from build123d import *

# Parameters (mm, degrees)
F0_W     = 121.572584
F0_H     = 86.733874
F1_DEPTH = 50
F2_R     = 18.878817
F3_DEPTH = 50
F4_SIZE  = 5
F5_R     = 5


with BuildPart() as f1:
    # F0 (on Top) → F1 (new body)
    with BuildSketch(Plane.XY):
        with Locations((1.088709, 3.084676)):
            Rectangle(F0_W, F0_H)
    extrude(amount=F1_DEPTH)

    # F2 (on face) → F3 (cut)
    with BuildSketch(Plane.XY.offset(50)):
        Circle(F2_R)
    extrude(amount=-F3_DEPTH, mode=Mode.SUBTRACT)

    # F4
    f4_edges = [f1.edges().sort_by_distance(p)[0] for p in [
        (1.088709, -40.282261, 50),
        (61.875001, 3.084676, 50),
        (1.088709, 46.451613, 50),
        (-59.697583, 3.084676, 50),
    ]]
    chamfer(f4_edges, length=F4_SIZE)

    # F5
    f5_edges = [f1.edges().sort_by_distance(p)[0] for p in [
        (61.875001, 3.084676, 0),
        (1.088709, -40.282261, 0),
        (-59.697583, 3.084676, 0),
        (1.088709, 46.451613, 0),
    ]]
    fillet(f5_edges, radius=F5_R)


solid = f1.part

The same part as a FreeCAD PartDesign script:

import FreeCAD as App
import Part
import Sketcher

V = App.Vector


def edges_at(feature, points):
    """Names of the edges that pass closest to the given points."""
    edges = feature.Shape.Edges
    near = lambda p: min(range(len(edges)), key=lambda i: edges[i].distToShape(Part.Vertex(*p))[0])
    return sorted({f"Edge{near(p) + 1}" for p in points})

doc = App.newDocument("Part")
body = doc.addObject("PartDesign::Body", "Body")

# Sketch on XY plane
sketch1 = body.newObject("Sketcher::SketchObject", "Sketch")
sketch1.AttachmentSupport = (doc.getObject("XY_Plane"), [""])
sketch1.MapMode = "FlatFace"
sketch1.addGeometry(Part.LineSegment(V(-59.697583, 46.451613, 0), V(-59.697583, -40.282261, 0)), False)
sketch1.addGeometry(Part.LineSegment(V(-59.697583, -40.282261, 0), V(61.875001, -40.282261, 0)), False)
sketch1.addGeometry(Part.LineSegment(V(61.875001, -40.282261, 0), V(61.875001, 46.451613, 0)), False)
sketch1.addGeometry(Part.LineSegment(V(61.875001, 46.451613, 0), V(-59.697583, 46.451613, 0)), False)
sketch1.addConstraint(Sketcher.Constraint("Coincident", 0, 2, 1, 1))
sketch1.addConstraint(Sketcher.Constraint("Coincident", 1, 2, 2, 1))
sketch1.addConstraint(Sketcher.Constraint("Coincident", 2, 2, 3, 1))
sketch1.addConstraint(Sketcher.Constraint("Coincident", 3, 2, 0, 1))
sketch1.addConstraint(Sketcher.Constraint("Vertical", 0))
sketch1.addConstraint(Sketcher.Constraint("Horizontal", 1))
sketch1.addConstraint(Sketcher.Constraint("Vertical", 2))
sketch1.addConstraint(Sketcher.Constraint("Horizontal", 3))
sketch1.addConstraint(Sketcher.Constraint("DistanceX", -1, 1, 1, 2, 61.875001))
sketch1.addConstraint(Sketcher.Constraint("DistanceX", 1, 1, 1, 2, 121.572584))
sketch1.addConstraint(Sketcher.Constraint("DistanceY", 0, 2, 0, 1, 86.733874))
sketch1.addConstraint(Sketcher.Constraint("DistanceY", 0, 2, -1, 1, 40.282261))
pad1 = body.newObject("PartDesign::Pad", "Pad")
pad1.Profile = sketch1
pad1.Length = 50

# Sketch on XY plane
sketch2 = body.newObject("Sketcher::SketchObject", "Sketch001")
sketch2.AttachmentSupport = (doc.getObject("XY_Plane"), [""])
sketch2.MapMode = "FlatFace"
sketch2.AttachmentOffset = App.Placement(V(0, 0, 50), App.Rotation())
sketch2.addGeometry(Part.Circle(V(0, 0, 0), V(0, 0, 1), 18.878817), False)
sketch2.addConstraint(Sketcher.Constraint("Coincident", 0, 3, -1, 1))
sketch2.addConstraint(Sketcher.Constraint("Diameter", 0, 37.757634))
pocket1 = body.newObject("PartDesign::Pocket", "Pocket")
pocket1.Profile = sketch2
pocket1.Length = 50
doc.recompute()

chamfer = body.newObject("PartDesign::Chamfer", "Chamfer")
chamfer.Base = (pocket1, edges_at(pocket1, [
    (1.089, -40.282, 50),
    (61.875, 3.085, 50),
    (1.089, 46.452, 50),
    (-59.698, 3.085, 50),
]))
chamfer.Size = 5
doc.recompute()

fillet = body.newObject("PartDesign::Fillet", "Fillet")
fillet.Base = (chamfer, edges_at(chamfer, [
    (61.875, 3.085, 0),
    (1.089, -40.282, 0),
    (-59.698, 3.085, 0),
    (1.089, 46.452, 0),
]))
fillet.Radius = 5

doc.recompute()
